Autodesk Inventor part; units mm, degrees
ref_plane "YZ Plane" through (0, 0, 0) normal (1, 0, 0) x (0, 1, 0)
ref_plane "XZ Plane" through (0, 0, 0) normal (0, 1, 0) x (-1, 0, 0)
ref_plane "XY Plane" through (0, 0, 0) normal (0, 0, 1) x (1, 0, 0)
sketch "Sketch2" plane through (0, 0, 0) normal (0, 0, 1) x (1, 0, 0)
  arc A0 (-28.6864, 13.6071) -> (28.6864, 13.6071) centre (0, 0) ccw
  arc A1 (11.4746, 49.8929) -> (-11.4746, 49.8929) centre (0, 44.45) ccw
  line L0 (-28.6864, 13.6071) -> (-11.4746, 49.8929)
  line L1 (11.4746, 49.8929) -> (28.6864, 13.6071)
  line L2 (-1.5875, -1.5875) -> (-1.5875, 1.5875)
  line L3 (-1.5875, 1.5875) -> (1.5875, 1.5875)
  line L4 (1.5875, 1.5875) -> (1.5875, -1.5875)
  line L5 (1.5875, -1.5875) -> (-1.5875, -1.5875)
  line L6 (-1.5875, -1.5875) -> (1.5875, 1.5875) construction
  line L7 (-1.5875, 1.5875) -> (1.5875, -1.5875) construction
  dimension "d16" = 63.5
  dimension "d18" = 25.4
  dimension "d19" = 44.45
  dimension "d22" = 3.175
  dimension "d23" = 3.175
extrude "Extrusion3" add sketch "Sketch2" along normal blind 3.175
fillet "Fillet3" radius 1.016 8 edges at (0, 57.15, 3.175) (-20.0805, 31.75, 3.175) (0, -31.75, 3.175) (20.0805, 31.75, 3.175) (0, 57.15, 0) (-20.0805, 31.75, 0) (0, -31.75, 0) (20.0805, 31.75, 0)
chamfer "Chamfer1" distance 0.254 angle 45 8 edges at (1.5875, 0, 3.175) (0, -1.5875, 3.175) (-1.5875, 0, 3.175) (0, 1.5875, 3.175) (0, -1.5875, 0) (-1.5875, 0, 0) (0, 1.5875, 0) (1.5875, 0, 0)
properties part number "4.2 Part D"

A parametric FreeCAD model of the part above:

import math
import FreeCAD as App
import Part
import Sketcher

V = App.Vector
Q = App.Units.Quantity


def edges_at(feature, points):
    """Names of the edges that pass closest to the given points."""
    edges = feature.Shape.Edges
    near = lambda p: min(range(len(edges)), key=lambda i: edges[i].distToShape(Part.Vertex(*p))[0])
    return sorted({f"Edge{near(p) + 1}" for p in points})


def add_polygon(sketch, points):
    """Adds a closed chain of lines whose ends are joined by coincident constraints."""
    first, n = sketch.GeometryCount, len(points)
    for a, b in zip(points, points[1:] + points[:1]):
        sketch.addGeometry(Part.LineSegment(App.Vector(*a, 0), App.Vector(*b, 0)), False)
    for i in range(n):
        sketch.addConstraint(Sketcher.Constraint("Coincident", first + i, 2, first + (i + 1) % n, 1))

doc = App.newDocument("Part")
params = doc.addObject("Spreadsheet::Sheet", "Params")
for row, (alias, value) in enumerate([
    ("sketch1_radius", "0.5 in"),
    ("sketch1_radius2", "1.25 in"),
    ("sketch1_width", "0.125 in"),
    ("pad1_length", "0.125 in"),
    ("fillet_radius", "0.04 in"),
    ("chamfer_size", "0.01 in"),
], start=1):
    params.set(f"A{row}", alias)
    params.set(f"B{row}", "=" + value)
    params.setAlias(f"B{row}", alias)

body = doc.addObject("PartDesign::Body", "Body")

sketch1 = body.newObject("Sketcher::SketchObject", "Sketch")
sketch1.AttachmentSupport = (doc.getObject("XY_Plane"), [""])
sketch1.MapMode = "FlatFace"
sketch1.addGeometry(Part.LineSegment(V(-11.4746, 49.8929, 0), V(-28.6864, 13.6071, 0)), False)
sketch1.addGeometry(Part.ArcOfCircle(Part.Circle(V(0, 0, 0), V(0, 0, 1), 31.750003), math.radians(154.623155), math.radians(385.376845)), False)
sketch1.addGeometry(Part.LineSegment(V(28.6864, 13.6071, 0), V(11.4746, 49.8929, 0)), False)
sketch1.addGeometry(Part.ArcOfCircle(Part.Circle(V(0, 44.45, 0), V(0, 0, 1), 12.700063), math.radians(25.377012), math.radians(154.622988)), False)
add_polygon(sketch1, [(1.5875, -1.5875), (-1.5875, -1.5875), (-1.5875, 1.5875), (1.5875, 1.5875)])
sketch1.addConstraint([
    Sketcher.Constraint("Tangent", 0, 2, 1, 1),
    Sketcher.Constraint("Tangent", 1, 2, 2, 1),
    Sketcher.Constraint("Tangent", 2, 2, 3, 1),
    Sketcher.Constraint("Tangent", 3, 2, 0, 1),
    Sketcher.Constraint("Horizontal", 4),
    Sketcher.Constraint("Vertical", 5),
    Sketcher.Constraint("Horizontal", 6),
    Sketcher.Constraint("Vertical", 7),
    Sketcher.Constraint("Coincident", 1, 3, -1, 1),
    Sketcher.Constraint("Symmetric", 4, 2, 6, 2, -1, 1),
    Sketcher.Constraint("PointOnObject", 3, 3, -2),
    Sketcher.Constraint("Equal", 6, 5),
    Sketcher.Constraint("Radius", 3, Q("0.5 in")),
    Sketcher.Constraint("Radius", 1, Q("1.25 in")),
    Sketcher.Constraint("DistanceX", 4, 2, 4, 1, Q("0.125 in")),
    Sketcher.Constraint("DistanceY", -1, 1, 3, 3, Q("1.75 in")),
])
sketch1.setExpression("Constraints[16]", "Params.sketch1_radius")
sketch1.setExpression("Constraints[17]", "Params.sketch1_radius2")
sketch1.setExpression("Constraints[18]", "Params.sketch1_width")
pad1 = body.newObject("PartDesign::Pad", "Pad")
pad1.Profile = sketch1
pad1.setExpression("Length", "Params.pad1_length")
doc.recompute()

fillet = body.newObject("PartDesign::Fillet", "Fillet")
fillet.Base = (pad1, edges_at(pad1, [
    (0, 57.15, 3.175),
    (-20.081, 31.75, 3.175),
    (0, -31.75, 3.175),
    (20.081, 31.75, 3.175),
    (0, 57.15, 0),
    (-20.081, 31.75, 0),
    (0, -31.75, 0),
    (20.081, 31.75, 0),
]))
fillet.setExpression("Radius", "Params.fillet_radius")
doc.recompute()

chamfer = body.newObject("PartDesign::Chamfer", "Chamfer")
chamfer.Base = (fillet, edges_at(fillet, [
    (1.587, 0, 3.175),
    (0, -1.587, 3.175),
    (-1.587, 0, 3.175),
    (0, 1.587, 3.175),
    (0, -1.587, 0),
    (-1.587, 0, 0),
    (0, 1.587, 0),
    (1.587, 0, 0),
]))
chamfer.setExpression("Size", "Params.chamfer_size")

doc.recompute()
